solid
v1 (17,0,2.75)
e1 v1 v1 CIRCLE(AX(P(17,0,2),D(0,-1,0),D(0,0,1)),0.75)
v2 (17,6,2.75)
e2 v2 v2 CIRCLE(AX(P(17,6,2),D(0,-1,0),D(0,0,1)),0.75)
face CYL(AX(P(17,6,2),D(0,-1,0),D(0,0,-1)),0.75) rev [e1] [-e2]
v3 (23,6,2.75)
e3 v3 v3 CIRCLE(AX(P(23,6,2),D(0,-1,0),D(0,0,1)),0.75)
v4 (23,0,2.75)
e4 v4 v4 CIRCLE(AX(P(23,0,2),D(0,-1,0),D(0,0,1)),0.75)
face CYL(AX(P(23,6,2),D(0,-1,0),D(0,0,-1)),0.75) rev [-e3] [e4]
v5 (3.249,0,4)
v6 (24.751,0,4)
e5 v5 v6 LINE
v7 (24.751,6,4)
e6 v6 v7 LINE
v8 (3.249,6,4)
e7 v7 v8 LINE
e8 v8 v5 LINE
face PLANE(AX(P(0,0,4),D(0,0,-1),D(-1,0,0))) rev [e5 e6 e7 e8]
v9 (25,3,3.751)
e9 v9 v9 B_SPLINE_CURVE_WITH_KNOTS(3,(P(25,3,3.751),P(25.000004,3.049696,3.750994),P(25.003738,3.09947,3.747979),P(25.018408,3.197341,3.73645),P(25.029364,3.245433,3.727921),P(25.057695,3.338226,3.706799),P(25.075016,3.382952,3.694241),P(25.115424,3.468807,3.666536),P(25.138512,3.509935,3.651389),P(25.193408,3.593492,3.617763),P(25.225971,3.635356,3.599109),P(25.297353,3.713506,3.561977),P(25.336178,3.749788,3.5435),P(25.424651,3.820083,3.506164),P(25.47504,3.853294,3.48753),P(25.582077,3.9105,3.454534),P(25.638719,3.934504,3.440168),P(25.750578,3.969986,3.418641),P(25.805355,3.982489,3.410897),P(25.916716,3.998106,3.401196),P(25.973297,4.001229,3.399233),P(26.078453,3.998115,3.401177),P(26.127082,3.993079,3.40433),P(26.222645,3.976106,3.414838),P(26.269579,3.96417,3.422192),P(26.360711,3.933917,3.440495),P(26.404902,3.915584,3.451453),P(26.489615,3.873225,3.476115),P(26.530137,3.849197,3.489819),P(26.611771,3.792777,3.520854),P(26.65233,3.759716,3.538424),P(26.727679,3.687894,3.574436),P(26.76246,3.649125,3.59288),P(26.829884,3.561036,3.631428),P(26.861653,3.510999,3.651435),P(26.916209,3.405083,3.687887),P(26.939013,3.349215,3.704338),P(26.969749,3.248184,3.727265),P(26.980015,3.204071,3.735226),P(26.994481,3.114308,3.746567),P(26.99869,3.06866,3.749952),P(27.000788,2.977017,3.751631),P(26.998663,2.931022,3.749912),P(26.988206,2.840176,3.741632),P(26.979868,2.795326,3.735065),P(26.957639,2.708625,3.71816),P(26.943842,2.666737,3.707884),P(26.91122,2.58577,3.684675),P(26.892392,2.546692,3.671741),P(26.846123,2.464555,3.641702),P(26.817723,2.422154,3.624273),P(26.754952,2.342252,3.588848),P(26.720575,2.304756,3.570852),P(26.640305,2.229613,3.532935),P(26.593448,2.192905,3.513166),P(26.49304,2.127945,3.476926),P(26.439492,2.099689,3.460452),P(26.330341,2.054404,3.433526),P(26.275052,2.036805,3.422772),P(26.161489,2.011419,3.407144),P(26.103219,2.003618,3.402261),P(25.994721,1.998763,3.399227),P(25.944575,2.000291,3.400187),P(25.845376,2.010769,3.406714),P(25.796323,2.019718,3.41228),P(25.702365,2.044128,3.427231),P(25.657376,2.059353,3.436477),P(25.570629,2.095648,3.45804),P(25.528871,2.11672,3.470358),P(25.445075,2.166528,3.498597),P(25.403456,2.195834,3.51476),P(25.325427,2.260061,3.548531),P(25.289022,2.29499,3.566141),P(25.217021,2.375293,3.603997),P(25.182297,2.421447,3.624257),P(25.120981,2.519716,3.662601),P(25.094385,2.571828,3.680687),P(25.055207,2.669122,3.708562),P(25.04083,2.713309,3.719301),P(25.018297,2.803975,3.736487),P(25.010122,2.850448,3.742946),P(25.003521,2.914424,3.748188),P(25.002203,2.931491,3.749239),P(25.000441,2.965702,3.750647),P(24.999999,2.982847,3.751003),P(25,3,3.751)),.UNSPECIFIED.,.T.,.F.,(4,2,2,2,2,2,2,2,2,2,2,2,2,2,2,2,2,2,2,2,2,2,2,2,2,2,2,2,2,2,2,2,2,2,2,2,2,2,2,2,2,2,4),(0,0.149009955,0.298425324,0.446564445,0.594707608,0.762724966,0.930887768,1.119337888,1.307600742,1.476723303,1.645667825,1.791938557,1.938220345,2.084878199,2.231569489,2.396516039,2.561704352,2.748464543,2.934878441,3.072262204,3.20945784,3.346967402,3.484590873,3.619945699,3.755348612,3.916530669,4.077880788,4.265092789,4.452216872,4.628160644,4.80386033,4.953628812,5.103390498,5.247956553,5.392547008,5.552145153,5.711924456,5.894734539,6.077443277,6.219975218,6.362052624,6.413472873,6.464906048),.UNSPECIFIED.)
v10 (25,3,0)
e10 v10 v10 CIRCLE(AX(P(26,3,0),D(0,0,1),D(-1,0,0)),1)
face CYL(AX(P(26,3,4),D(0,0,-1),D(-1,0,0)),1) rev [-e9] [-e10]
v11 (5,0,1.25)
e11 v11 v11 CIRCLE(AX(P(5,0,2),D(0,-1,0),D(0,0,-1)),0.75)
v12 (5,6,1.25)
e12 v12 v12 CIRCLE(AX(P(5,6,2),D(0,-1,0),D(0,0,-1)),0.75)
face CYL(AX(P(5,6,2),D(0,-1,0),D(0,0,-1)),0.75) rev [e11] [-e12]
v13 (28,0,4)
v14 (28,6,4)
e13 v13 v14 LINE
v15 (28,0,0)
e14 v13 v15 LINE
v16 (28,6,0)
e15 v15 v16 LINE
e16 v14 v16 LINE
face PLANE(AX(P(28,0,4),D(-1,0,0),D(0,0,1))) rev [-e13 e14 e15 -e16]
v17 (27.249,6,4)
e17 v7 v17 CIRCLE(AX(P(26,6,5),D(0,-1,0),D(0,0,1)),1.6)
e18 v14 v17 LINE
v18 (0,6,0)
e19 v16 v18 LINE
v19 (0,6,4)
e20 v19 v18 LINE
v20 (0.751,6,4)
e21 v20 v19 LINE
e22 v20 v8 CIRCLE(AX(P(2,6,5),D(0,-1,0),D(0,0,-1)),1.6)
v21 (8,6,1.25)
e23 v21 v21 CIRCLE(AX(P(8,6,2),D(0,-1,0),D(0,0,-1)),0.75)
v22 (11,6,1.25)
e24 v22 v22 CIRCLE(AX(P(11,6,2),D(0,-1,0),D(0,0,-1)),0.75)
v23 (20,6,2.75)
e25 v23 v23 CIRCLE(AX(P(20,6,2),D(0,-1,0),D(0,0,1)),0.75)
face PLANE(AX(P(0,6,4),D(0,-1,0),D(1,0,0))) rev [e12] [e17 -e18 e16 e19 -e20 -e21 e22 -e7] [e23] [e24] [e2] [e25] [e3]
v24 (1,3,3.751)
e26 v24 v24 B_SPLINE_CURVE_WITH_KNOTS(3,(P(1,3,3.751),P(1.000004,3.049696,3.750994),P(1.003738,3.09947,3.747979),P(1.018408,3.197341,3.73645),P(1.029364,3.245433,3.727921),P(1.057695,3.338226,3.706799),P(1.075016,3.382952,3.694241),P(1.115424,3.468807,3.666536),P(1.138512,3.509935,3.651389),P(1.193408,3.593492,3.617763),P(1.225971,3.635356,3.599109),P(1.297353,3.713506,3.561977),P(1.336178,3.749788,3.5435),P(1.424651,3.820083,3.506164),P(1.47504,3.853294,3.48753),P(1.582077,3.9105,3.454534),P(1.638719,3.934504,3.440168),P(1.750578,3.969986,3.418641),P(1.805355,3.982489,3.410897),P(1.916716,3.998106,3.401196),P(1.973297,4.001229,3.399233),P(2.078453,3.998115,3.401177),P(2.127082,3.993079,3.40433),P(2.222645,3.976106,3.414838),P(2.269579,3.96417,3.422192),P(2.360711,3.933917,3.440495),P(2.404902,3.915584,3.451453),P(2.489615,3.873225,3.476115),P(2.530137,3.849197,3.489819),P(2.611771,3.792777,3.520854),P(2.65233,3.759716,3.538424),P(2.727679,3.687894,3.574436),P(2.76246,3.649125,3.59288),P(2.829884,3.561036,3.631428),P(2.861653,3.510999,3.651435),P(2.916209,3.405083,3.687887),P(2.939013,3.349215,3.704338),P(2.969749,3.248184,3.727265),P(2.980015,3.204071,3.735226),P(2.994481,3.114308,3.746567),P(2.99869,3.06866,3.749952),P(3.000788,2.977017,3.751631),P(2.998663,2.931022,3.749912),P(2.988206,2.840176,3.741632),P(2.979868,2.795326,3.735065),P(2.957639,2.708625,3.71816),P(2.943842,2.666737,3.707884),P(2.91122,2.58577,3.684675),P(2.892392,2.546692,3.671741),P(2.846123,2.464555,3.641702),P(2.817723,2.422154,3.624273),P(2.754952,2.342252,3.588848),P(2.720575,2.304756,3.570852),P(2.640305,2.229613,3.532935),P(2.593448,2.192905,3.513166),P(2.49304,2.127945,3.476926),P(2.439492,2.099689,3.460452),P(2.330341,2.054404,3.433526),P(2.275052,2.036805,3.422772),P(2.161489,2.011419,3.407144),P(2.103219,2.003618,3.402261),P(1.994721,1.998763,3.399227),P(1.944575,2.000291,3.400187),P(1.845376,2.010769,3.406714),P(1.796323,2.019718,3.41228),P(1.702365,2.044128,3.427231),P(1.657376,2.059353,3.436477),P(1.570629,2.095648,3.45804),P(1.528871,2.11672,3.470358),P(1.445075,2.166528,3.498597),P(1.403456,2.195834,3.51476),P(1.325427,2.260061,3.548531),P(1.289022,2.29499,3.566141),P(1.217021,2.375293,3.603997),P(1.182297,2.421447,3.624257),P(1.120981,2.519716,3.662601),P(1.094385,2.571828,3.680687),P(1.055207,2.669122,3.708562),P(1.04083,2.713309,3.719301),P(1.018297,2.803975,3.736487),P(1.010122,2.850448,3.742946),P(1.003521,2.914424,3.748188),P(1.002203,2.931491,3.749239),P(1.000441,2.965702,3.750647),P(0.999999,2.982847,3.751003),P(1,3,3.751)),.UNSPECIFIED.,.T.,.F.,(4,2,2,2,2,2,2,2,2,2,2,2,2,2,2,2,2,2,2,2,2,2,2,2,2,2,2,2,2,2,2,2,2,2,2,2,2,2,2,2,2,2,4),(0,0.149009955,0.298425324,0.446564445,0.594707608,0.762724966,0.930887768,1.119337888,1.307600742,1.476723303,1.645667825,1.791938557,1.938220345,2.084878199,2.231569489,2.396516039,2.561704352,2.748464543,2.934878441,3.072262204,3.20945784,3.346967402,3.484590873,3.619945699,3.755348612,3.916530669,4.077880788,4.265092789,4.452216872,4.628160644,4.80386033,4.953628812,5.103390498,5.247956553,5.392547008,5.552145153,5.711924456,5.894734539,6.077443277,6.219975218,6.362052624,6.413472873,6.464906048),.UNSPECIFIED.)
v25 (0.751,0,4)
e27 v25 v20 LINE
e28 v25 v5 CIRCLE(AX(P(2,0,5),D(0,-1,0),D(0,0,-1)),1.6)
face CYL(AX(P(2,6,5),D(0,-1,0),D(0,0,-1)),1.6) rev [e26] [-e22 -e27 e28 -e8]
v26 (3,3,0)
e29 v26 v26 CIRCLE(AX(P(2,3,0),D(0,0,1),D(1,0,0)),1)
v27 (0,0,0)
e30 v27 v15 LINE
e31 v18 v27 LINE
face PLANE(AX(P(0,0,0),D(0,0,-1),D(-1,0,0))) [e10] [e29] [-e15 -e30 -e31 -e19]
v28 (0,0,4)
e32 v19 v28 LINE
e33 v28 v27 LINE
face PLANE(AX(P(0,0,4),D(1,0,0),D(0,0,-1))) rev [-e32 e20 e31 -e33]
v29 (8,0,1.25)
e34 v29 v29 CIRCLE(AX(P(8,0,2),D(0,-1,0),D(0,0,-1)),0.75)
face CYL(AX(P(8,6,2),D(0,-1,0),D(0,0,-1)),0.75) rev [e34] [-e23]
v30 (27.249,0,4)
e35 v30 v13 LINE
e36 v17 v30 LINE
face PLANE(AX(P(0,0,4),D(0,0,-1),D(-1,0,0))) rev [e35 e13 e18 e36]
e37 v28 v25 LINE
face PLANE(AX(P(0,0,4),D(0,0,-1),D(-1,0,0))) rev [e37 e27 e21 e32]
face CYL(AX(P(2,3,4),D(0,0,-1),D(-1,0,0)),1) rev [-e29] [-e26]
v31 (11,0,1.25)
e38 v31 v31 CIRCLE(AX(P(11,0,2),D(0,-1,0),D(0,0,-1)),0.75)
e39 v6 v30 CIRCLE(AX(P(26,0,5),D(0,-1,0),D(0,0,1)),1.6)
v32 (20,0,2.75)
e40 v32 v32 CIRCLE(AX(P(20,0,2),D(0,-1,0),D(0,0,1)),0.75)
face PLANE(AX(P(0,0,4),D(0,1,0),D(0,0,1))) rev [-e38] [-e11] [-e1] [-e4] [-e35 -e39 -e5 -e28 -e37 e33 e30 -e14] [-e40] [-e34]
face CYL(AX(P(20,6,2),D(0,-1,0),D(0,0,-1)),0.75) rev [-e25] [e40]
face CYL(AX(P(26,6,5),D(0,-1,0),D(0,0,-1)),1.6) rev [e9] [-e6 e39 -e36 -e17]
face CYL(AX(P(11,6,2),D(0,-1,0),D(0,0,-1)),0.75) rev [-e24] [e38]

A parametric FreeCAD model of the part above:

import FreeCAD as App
import Part
import Sketcher

V = App.Vector
Q = App.Units.Quantity


def add_polygon(sketch, points):
    """Adds a closed chain of lines whose ends are joined by coincident constraints."""
    first, n = sketch.GeometryCount, len(points)
    for a, b in zip(points, points[1:] + points[:1]):
        sketch.addGeometry(Part.LineSegment(App.Vector(*a, 0), App.Vector(*b, 0)), False)
    for i in range(n):
        sketch.addConstraint(Sketcher.Constraint("Coincident", first + i, 2, first + (i + 1) % n, 1))

doc = App.newDocument("Part")
body = doc.addObject("PartDesign::Body", "Body")

# Sketch on XY plane
sketch1 = body.newObject("Sketcher::SketchObject", "Sketch")
sketch1.AttachmentSupport = (doc.getObject("XY_Plane"), [""])
sketch1.MapMode = "FlatFace"
add_polygon(sketch1, [(0, 6), (0, 0), (28, 0), (28, 6)])  # lines 0-3
sketch1.addGeometry(Part.Circle(V(2, 3, 0), V(0, 0, 1), 1), False)  # 4
sketch1.addGeometry(Part.Circle(V(26, 3, 0), V(0, 0, 1), 1), False)  # 5
sketch1.addConstraint([
    Sketcher.Constraint("Vertical", 0),
    Sketcher.Constraint("Horizontal", 1),
    Sketcher.Constraint("Vertical", 2),
    Sketcher.Constraint("Horizontal", 3),
    Sketcher.Constraint("Coincident", 0, 2, -1, 1),
    Sketcher.Constraint("Equal", 4, 5),
    Sketcher.Constraint("Horizontal", 4, 3, 5, 3),
    Sketcher.Constraint("Diameter", 4, Q("2 mm")),
    Sketcher.Constraint("DistanceX", 1, 1, 1, 2, Q("28 mm")),
    Sketcher.Constraint("DistanceY", 0, 2, 0, 1, Q("6 mm")),
    Sketcher.Constraint("DistanceX", -1, 1, 4, 3, Q("2 mm")),
    Sketcher.Constraint("DistanceY", -1, 1, 4, 3, Q("3 mm")),
    Sketcher.Constraint("DistanceX", -1, 1, 5, 3, Q("26 mm")),
])
pad1 = body.newObject("PartDesign::Pad", "Pad")
pad1.Profile = sketch1
pad1.Length = 4

# Sketch on XZ plane
sketch2 = body.newObject("Sketcher::SketchObject", "Sketch001")
sketch2.AttachmentSupport = (doc.getObject("XZ_Plane"), [""])
sketch2.MapMode = "FlatFace"
sketch2.addGeometry([
    Part.Circle(V(2, 5, 0), V(0, 0, 1), 1.6),  # 0
    Part.Circle(V(11, 2, 0), V(0, 0, 1), 0.8),  # 1
    Part.Circle(V(8, 2, 0), V(0, 0, 1), 0.8),  # 2
    Part.Circle(V(5, 2, 0), V(0, 0, 1), 0.8),  # 3
    Part.Circle(V(23, 2, 0), V(0, 0, 1), 0.8),  # 4
    Part.Circle(V(20, 2, 0), V(0, 0, 1), 0.8),  # 5
    Part.Circle(V(17, 2, 0), V(0, 0, 1), 0.8),  # 6
    Part.Circle(V(26, 5, 0), V(0, 0, 1), 1.6),  # 7
], False)
sketch2.addConstraint([
    Sketcher.Constraint("Equal", 1, 2),
    Sketcher.Constraint("Equal", 2, 3),
    Sketcher.Constraint("Equal", 3, 4),
    Sketcher.Constraint("Equal", 4, 5),
    Sketcher.Constraint("Equal", 5, 6),
    Sketcher.Constraint("Equal", 0, 7),
    Sketcher.Constraint("Horizontal", 1, 3, 2, 3),
    Sketcher.Constraint("Horizontal", 2, 3, 3, 3),
    Sketcher.Constraint("Horizontal", 3, 3, 4, 3),
    Sketcher.Constraint("Horizontal", 4, 3, 5, 3),
    Sketcher.Constraint("Horizontal", 5, 3, 6, 3),
    Sketcher.Constraint("Horizontal", 0, 3, 7, 3),
    Sketcher.Constraint("Diameter", 0, Q("3.2 mm")),
    Sketcher.Constraint("Diameter", 1, Q("1.5 mm")),
    Sketcher.Constraint("DistanceX", -1, 1, 0, 3, Q("2 mm")),
    Sketcher.Constraint("DistanceY", -1, 1, 0, 3, Q("5 mm")),
    Sketcher.Constraint("DistanceX", -1, 1, 1, 3, Q("11 mm")),
    Sketcher.Constraint("DistanceY", -1, 1, 1, 3, Q("2 mm")),
    Sketcher.Constraint("DistanceX", -1, 1, 2, 3, Q("8 mm")),
    Sketcher.Constraint("DistanceX", -1, 1, 3, 3, Q("5 mm")),
    Sketcher.Constraint("DistanceX", -1, 1, 4, 3, Q("23 mm")),
    Sketcher.Constraint("DistanceX", -1, 1, 5, 3, Q("20 mm")),
    Sketcher.Constraint("DistanceX", -1, 1, 6, 3, Q("17 mm")),
    Sketcher.Constraint("DistanceX", -1, 1, 7, 3, Q("26 mm")),
])
pocket1 = body.newObject("PartDesign::Pocket", "Pocket")
pocket1.Profile = sketch2
pocket1.Length = 6

doc.recompute()
